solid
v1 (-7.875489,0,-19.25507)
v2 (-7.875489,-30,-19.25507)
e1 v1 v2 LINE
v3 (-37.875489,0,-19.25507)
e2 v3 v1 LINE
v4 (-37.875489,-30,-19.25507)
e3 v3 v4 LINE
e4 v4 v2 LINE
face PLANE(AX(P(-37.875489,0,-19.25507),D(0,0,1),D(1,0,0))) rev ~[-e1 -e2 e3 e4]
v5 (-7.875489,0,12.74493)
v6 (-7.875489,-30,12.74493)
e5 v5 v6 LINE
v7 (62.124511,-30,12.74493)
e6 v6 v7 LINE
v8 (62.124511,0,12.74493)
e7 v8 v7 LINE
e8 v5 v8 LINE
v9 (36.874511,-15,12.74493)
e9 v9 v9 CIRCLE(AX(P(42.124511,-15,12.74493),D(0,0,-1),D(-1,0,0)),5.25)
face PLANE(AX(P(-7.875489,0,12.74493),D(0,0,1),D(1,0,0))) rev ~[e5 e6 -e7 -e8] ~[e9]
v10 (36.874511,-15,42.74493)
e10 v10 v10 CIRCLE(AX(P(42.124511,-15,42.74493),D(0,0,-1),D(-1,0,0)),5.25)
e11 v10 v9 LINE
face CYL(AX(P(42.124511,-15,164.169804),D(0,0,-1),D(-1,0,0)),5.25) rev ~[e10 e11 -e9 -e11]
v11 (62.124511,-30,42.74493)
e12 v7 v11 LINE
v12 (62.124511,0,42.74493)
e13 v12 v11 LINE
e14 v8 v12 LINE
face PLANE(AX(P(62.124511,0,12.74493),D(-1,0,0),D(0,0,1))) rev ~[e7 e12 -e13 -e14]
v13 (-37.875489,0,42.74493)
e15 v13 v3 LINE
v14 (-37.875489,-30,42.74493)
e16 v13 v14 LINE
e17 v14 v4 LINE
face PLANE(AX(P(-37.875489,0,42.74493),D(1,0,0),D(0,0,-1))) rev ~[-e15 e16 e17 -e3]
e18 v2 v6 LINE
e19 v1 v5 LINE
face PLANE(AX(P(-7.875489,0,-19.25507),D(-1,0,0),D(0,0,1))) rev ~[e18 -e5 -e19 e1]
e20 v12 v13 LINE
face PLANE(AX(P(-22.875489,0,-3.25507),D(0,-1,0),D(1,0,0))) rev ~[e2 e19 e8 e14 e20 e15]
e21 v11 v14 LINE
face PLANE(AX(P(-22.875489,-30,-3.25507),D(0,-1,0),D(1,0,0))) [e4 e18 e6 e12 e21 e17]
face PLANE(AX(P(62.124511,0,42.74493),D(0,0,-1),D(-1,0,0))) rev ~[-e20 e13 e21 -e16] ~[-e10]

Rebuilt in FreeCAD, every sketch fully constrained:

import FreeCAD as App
import Part
import Sketcher

V = App.Vector


def add_polygon(sketch, points):
    """Adds a closed chain of lines whose ends are joined by coincident constraints."""
    first, n = sketch.GeometryCount, len(points)
    for a, b in zip(points, points[1:] + points[:1]):
        sketch.addGeometry(Part.LineSegment(App.Vector(*a, 0), App.Vector(*b, 0)), False)
    for i in range(n):
        sketch.addConstraint(Sketcher.Constraint("Coincident", first + i, 2, first + (i + 1) % n, 1))

doc = App.newDocument("Part")
params = doc.addObject("Spreadsheet::Sheet", "Params")
for row, (alias, value) in enumerate([
    ("sketch1_width", "30 mm"),
    ("sketch1_width2", "70 mm"),
    ("sketch1_height", "32 mm"),
    ("pad1_length", "30 mm"),
    ("sketch2_diameter", "10.5 mm"),
    ("hole_diameter", "10.5 mm"),
], start=1):
    params.set(f"A{row}", alias)
    params.set(f"B{row}", "=" + value)
    params.setAlias(f"B{row}", alias)

body = doc.addObject("PartDesign::Body", "Body")

sketch1 = body.newObject("Sketcher::SketchObject", "Sketch")
sketch1.AttachmentSupport = (doc.getObject("XZ_Plane"), [""])
sketch1.MapMode = "FlatFace"
add_polygon(sketch1, [(-38, -19), (-8, -19), (-8, 13), (62, 13), (62, 43), (-38, 43)])
sketch1.addConstraint([
    Sketcher.Constraint("Horizontal", 0),
    Sketcher.Constraint("Vertical", 1),
    Sketcher.Constraint("Horizontal", 2),
    Sketcher.Constraint("Vertical", 3),
    Sketcher.Constraint("Horizontal", 4),
    Sketcher.Constraint("Vertical", 5),
    Sketcher.Constraint("Equal", 0, 3),
    Sketcher.Constraint("DistanceX", 0, 1, 0, 2, 30.0),
    Sketcher.Constraint("DistanceX", 2, 1, 2, 2, 70.0),
    Sketcher.Constraint("DistanceY", 1, 1, 1, 2, 32.0),
    Sketcher.Constraint("DistanceX", 0, 2, -1, 1, 7.875489),
    Sketcher.Constraint("DistanceY", 0, 2, -1, 1, 19.25507),
])
sketch1.setExpression("Constraints[13]", "Params.sketch1_width")
sketch1.setExpression("Constraints[14]", "Params.sketch1_width2")
sketch1.setExpression("Constraints[15]", "Params.sketch1_height")
pad1 = body.newObject("PartDesign::Pad", "Pad")
pad1.Profile = sketch1
pad1.setExpression("Length", "Params.pad1_length")

sketch2 = body.newObject("Sketcher::SketchObject", "Sketch001")
sketch2.AttachmentSupport = (doc.getObject("XY_Plane"), [""])
sketch2.MapMode = "FlatFace"
sketch2.AttachmentOffset = App.Placement(V(0, 0, 42.74493), App.Rotation())
sketch2.addGeometry(Part.Circle(V(42, -15, 0), V(0, 0, 1), 5), False)
sketch2.addConstraint([
    Sketcher.Constraint("Diameter", 0, 10.5),
    Sketcher.Constraint("DistanceY", 0, 3, -1, 1, 15.0),
    Sketcher.Constraint("DistanceX", -1, 1, 0, 3, 42.124511),
])
sketch2.setExpression("Constraints[0]", "Params.sketch2_diameter")
doc.recompute()
hole = body.newObject("PartDesign::Hole", "Hole")
hole.Profile = sketch2
hole.ThreadType = "None"
hole.setExpression("Diameter", "Params.hole_diameter")
hole.DepthType = "ThroughAll"

doc.recompute()
